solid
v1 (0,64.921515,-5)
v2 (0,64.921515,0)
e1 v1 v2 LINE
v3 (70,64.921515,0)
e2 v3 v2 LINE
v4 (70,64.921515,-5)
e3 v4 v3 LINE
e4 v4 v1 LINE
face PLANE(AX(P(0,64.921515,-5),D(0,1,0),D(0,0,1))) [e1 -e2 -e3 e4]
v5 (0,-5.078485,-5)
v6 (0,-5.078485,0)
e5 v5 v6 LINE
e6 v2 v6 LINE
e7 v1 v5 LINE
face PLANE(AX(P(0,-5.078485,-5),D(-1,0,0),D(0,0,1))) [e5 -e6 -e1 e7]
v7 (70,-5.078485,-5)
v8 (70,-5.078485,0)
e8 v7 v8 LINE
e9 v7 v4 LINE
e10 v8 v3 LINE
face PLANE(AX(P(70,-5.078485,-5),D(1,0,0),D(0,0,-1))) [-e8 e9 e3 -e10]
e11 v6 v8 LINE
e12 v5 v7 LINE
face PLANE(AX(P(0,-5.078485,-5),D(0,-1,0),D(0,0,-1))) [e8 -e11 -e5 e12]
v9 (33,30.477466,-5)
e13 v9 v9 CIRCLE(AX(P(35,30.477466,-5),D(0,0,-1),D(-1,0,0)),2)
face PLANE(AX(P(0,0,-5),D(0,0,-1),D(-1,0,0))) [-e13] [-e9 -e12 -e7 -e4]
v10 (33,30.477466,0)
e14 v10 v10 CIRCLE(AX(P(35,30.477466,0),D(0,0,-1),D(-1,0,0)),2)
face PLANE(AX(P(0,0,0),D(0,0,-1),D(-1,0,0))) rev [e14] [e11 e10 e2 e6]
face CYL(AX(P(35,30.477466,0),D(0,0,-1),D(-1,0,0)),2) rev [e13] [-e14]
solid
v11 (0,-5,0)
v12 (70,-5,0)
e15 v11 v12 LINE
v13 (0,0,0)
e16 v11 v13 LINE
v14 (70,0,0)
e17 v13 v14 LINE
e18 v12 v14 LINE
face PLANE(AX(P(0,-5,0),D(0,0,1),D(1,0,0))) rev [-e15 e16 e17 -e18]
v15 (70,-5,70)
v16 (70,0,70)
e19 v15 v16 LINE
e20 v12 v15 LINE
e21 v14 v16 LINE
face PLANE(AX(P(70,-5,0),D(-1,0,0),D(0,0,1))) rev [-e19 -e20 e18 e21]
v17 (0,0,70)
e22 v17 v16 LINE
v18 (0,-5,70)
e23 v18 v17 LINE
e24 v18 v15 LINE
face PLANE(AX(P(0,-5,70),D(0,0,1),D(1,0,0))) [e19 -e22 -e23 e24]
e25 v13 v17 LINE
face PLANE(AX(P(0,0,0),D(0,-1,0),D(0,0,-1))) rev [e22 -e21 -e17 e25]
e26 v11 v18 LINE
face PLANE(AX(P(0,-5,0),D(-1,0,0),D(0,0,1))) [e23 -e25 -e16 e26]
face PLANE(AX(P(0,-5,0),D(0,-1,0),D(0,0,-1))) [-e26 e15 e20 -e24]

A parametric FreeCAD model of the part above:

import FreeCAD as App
import Part
import Sketcher
from FreeCAD import Vector
Q = App.Units.Quantity


def add_polygon(sketch, points):
    """Adds a closed chain of lines whose ends are joined by coincident constraints."""
    first, n = sketch.GeometryCount, len(points)
    for a, b in zip(points, points[1:] + points[:1]):
        sketch.addGeometry(Part.LineSegment(App.Vector(*a, 0), App.Vector(*b, 0)), False)
    for i in range(n):
        sketch.addConstraint(Sketcher.Constraint("Coincident", first + i, 2, first + (i + 1) % n, 1))

doc = App.newDocument("Part")
body = doc.addObject("PartDesign::Body", "Body")

# Sketch on XY plane
sketch1 = doc.addObject("Sketcher::SketchObject", "Sketch")
body.addObject(sketch1)
sketch1.AttachmentSupport = (doc.XY_Plane, [""])
sketch1.MapMode = "FlatFace"
add_polygon(sketch1, [(0, 65), (0, -5), (70, -5), (70, 65)])  # lines 0-3
sketch1.addConstraint(Sketcher.Constraint("Vertical", 0))
sketch1.addConstraint(Sketcher.Constraint("Horizontal", 1))
sketch1.addConstraint(Sketcher.Constraint("Vertical", 2))
sketch1.addConstraint(Sketcher.Constraint("Horizontal", 3))
sketch1.addConstraint(Sketcher.Constraint("PointOnObject", 0, 2, -2))
sketch1.addConstraint(Sketcher.Constraint("Equal", 3, 0))
sketch1.addConstraint(Sketcher.Constraint("DistanceX", 1, 1, 1, 2, Q("70 mm")))
sketch1.addConstraint(Sketcher.Constraint("DistanceY", 0, 2, -1, 1, Q("5.078485 mm")))
pad1 = doc.addObject("PartDesign::Pad", "Pad")
body.addObject(pad1)
pad1.Profile = sketch1
pad1.Length = 5
pad1.Reversed = True

# Sketch on XY plane
sketch2 = doc.addObject("Sketcher::SketchObject", "Sketch001")
body.addObject(sketch2)
sketch2.AttachmentSupport = (doc.XY_Plane, [""])
sketch2.MapMode = "FlatFace"
sketch2.AttachmentOffset = App.Placement(Vector(0, 0, -5), App.Rotation())
sketch2.addGeometry(Part.Circle(Vector(35, 30.5, 0), Vector(0, 0, 1), 2), False)
sketch2.addConstraint(Sketcher.Constraint("Diameter", 0, Q("4 mm")))
sketch2.addConstraint(Sketcher.Constraint("DistanceX", -1, 1, 0, 3, Q("35 mm")))
sketch2.addConstraint(Sketcher.Constraint("DistanceY", -1, 1, 0, 3, Q("30.477466 mm")))
pocket1 = doc.addObject("PartDesign::Pocket", "Pocket")
body.addObject(pocket1)
pocket1.Profile = sketch2
pocket1.Length = 5
pocket1.Reversed = True
body2 = doc.addObject("PartDesign::Body", "Body001")

# Sketch on XZ plane
sketch3 = doc.addObject("Sketcher::SketchObject", "Sketch002")
body2.addObject(sketch3)
sketch3.AttachmentSupport = (doc.getObject("XZ_Plane001"), [""])
sketch3.MapMode = "FlatFace"
add_polygon(sketch3, [(0, 0), (0, 70), (70, 70), (70, 0)])  # lines 0-3
sketch3.addConstraint(Sketcher.Constraint("Vertical", 0))
sketch3.addConstraint(Sketcher.Constraint("Horizontal", 1))
sketch3.addConstraint(Sketcher.Constraint("Vertical", 2))
sketch3.addConstraint(Sketcher.Constraint("Horizontal", 3))
sketch3.addConstraint(Sketcher.Constraint("Coincident", 3, 2, -1, 1))
sketch3.addConstraint(Sketcher.Constraint("Equal", 3, 0))
sketch3.addConstraint(Sketcher.Constraint("DistanceX", 1, 1, 1, 2, Q("70 mm")))
pad2 = doc.addObject("PartDesign::Pad", "Pad001")
body2.addObject(pad2)
pad2.Profile = sketch3
pad2.Length = 5

doc.recompute()
